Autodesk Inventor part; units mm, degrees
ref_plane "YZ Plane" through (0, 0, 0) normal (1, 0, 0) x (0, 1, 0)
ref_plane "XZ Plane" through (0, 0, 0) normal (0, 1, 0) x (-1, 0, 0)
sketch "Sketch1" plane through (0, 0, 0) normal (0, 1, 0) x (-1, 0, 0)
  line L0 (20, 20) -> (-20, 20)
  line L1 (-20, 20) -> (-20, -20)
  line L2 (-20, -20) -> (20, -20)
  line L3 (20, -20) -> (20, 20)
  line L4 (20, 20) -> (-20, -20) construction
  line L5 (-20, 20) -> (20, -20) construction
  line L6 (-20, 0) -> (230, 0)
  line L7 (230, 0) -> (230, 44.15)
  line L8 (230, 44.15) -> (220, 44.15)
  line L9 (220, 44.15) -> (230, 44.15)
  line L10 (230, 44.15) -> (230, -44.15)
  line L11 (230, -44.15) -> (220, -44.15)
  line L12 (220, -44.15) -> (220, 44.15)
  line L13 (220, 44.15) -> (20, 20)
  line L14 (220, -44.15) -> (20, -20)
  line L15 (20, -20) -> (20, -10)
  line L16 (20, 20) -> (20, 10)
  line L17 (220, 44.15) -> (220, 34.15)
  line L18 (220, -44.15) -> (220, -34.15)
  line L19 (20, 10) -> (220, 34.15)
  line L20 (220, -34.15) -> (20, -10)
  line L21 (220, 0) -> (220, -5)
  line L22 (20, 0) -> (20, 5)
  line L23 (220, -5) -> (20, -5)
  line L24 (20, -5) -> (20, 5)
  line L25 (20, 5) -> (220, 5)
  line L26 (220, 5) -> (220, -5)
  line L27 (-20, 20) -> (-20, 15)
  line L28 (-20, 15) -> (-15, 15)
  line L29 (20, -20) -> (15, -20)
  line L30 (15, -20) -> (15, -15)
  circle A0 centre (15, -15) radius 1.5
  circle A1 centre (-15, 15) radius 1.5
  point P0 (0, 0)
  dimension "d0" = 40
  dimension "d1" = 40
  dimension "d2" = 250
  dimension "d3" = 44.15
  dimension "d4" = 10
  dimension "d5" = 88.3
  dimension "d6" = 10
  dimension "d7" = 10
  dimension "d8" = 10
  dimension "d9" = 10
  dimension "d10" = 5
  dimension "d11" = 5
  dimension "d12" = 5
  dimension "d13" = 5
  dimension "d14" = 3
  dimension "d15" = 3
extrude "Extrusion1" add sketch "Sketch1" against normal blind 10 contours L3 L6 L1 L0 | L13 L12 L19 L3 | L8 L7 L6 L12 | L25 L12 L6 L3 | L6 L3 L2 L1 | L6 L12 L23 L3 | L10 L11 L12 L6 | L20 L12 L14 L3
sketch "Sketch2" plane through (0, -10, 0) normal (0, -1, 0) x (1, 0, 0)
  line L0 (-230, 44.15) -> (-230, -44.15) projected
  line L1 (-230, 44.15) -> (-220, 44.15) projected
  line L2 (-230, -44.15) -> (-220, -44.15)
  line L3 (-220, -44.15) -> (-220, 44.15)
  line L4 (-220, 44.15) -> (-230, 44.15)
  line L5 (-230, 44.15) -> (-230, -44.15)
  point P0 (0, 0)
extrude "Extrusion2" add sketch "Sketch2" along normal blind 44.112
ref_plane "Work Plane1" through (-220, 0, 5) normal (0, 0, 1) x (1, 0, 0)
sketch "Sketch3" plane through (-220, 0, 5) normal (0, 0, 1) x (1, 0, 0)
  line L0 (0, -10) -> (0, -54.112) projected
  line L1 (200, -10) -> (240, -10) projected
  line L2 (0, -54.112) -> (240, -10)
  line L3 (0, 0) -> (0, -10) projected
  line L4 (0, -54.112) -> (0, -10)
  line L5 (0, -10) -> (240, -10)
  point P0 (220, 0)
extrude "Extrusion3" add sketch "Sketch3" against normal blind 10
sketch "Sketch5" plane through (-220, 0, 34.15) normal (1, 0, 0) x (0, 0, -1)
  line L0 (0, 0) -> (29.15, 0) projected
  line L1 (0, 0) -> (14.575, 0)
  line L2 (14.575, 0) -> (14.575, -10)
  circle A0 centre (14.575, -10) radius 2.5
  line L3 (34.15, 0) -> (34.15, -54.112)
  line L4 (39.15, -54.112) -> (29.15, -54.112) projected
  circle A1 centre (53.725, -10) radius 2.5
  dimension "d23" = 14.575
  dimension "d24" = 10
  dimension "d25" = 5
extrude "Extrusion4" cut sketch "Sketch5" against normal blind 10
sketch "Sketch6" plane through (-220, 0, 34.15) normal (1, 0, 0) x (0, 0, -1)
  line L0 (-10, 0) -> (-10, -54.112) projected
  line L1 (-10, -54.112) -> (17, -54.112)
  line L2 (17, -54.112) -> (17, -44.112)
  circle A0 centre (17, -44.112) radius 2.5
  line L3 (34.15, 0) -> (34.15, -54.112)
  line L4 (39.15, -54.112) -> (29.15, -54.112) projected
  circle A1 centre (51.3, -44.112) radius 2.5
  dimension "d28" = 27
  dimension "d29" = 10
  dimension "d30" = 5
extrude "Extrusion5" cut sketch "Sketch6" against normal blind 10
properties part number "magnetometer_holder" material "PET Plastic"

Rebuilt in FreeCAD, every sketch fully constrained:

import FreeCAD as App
import Part
import Sketcher
from FreeCAD import Vector
Q = App.Units.Quantity


def add_polygon(sketch, points):
    """Adds a closed chain of lines whose ends are joined by coincident constraints."""
    first, n = sketch.GeometryCount, len(points)
    for a, b in zip(points, points[1:] + points[:1]):
        sketch.addGeometry(Part.LineSegment(App.Vector(*a, 0), App.Vector(*b, 0)), False)
    for i in range(n):
        sketch.addConstraint(Sketcher.Constraint("Coincident", first + i, 2, first + (i + 1) % n, 1))

doc = App.newDocument("Part")
body = doc.addObject("PartDesign::Body", "Body")

sketch1 = body.newObject("Sketcher::SketchObject", "Sketch")
sketch1.AttachmentSupport = (doc.getObject("XZ_Plane"), [""])
sketch1.MapMode = "FlatFace"
add_polygon(sketch1, [(20, 15), (20, -20), (-15, -20), (-20, -20), (-220, -44.1), (-230, -44.1), (-230, 44.1), (-220, 44.1), (-20, 20), (20, 20)])
add_polygon(sketch1, [(-20, 5), (-20, 10), (-220, 34.1), (-220, 5)])
sketch1.addGeometry(Part.Circle(Vector(15, 15, 0), Vector(0, 0, 1), 1.5), False)
add_polygon(sketch1, [(-20, -10), (-20, -5), (-220, -5), (-220, -34.1)])
sketch1.addGeometry(Part.Circle(Vector(-15, -15, 0), Vector(0, 0, 1), 1.5), False)
sketch1.addConstraint([
    Sketcher.Constraint("Vertical", 0),
    Sketcher.Constraint("Horizontal", 1),
    Sketcher.Constraint("Horizontal", 2),
    Sketcher.Constraint("Horizontal", 4),
    Sketcher.Constraint("Vertical", 5),
    Sketcher.Constraint("Horizontal", 6),
    Sketcher.Constraint("Horizontal", 8),
    Sketcher.Constraint("Vertical", 9),
    Sketcher.Constraint("Vertical", 10),
    Sketcher.Constraint("Vertical", 12),
    Sketcher.Constraint("Horizontal", 13),
    Sketcher.Constraint("Vertical", 15),
    Sketcher.Constraint("Horizontal", 16),
    Sketcher.Constraint("Vertical", 17),
    Sketcher.Constraint("Equal", 14, 19),
    Sketcher.Constraint("Symmetric", 14, 3, 19, 3, -1, 1),
    Sketcher.Constraint("Symmetric", 0, 2, 7, 2, -1, 1),
    Sketcher.Constraint("Symmetric", 3, 2, 6, 2, -1),
    Sketcher.Constraint("Symmetric", 13, 2, 15, 2, -1),
    Sketcher.Constraint("Symmetric", 11, 2, 17, 2, -1),
    Sketcher.Constraint("Parallel", 7, 11),
    Sketcher.Constraint("Parallel", 3, 18),
    Sketcher.Constraint("Horizontal", 14, 3, 9, 2),
    Sketcher.Constraint("Vertical", 19, 3, 1, 2),
    Sketcher.Constraint("Vertical", 2, 2, 7, 2),
    Sketcher.Constraint("Vertical", 7, 2, 10, 2),
    Sketcher.Constraint("Vertical", 6, 2, 11, 2),
    Sketcher.Constraint("Equal", 1, 0),
    Sketcher.Constraint("Equal", 2, 9),
    Sketcher.Constraint("Equal", 9, 10),
    Sketcher.Constraint("Diameter", 14, Q("3 mm")),
    Sketcher.Constraint("DistanceX", 2, 2, 2, 1, Q("5 mm")),
    Sketcher.Constraint("DistanceX", 4, 2, 4, 1, Q("10 mm")),
    Sketcher.Constraint("DistanceX", 8, 1, 8, 2, Q("40 mm")),
    Sketcher.Constraint("DistanceY", 5, 1, 5, 2, Q("88.3 mm")),
    Sketcher.Constraint("DistanceY", -1, 1, 10, 2, Q("10 mm")),
    Sketcher.Constraint("DistanceX", 4, 2, 0, 2, Q("250 mm")),
])
pad1 = body.newObject("PartDesign::Pad", "Pad")
pad1.Profile = sketch1
pad1.Length = 10

sketch2 = body.newObject("Sketcher::SketchObject", "Sketch001")
sketch2.AttachmentSupport = (doc.getObject("XZ_Plane"), [""])
sketch2.MapMode = "FlatFace"
sketch2.AttachmentOffset = App.Placement(Vector(0, 0, 10), App.Rotation())
add_polygon(sketch2, [(-220, 44), (-230, 44), (-230, -44), (-220, -44)])
sketch2.addConstraint([
    Sketcher.Constraint("Horizontal", 0),
    Sketcher.Constraint("Vertical", 1),
    Sketcher.Constraint("Horizontal", 2),
    Sketcher.Constraint("Vertical", 3),
    Sketcher.Constraint("DistanceX", 0, 2, 0, 1, Q("10 mm")),
    Sketcher.Constraint("DistanceY", 1, 2, 1, 1, Q("88.3 mm")),
    Sketcher.Constraint("DistanceX", 0, 2, -1, 1, Q("230 mm")),
    Sketcher.Constraint("DistanceY", -1, 1, 0, 2, Q("44.15 mm")),
])
pad2 = body.newObject("PartDesign::Pad", "Pad001")
pad2.Profile = sketch2
pad2.Length = 44.112

sketch3 = body.newObject("Sketcher::SketchObject", "Sketch002")
sketch3.AttachmentSupport = (doc.getObject("XY_Plane"), [""])
sketch3.MapMode = "FlatFace"
sketch3.AttachmentOffset = App.Placement(Vector(0, 0, 5), App.Rotation())
add_polygon(sketch3, [(20, -10), (-220, -10), (-220, -54)])
sketch3.addConstraint([
    Sketcher.Constraint("Horizontal", 0),
    Sketcher.Constraint("Vertical", 1),
    Sketcher.Constraint("DistanceX", 0, 2, 0, 1, Q("240 mm")),
    Sketcher.Constraint("DistanceX", 0, 2, -1, 1, Q("220 mm")),
    Sketcher.Constraint("DistanceY", 0, 2, -1, 1, Q("10 mm")),
    Sketcher.Constraint("DistanceY", 1, 2, 1, 1, Q("44.112 mm")),
])
pad3 = body.newObject("PartDesign::Pad", "Pad002")
pad3.Profile = sketch3
pad3.Length = 10
pad3.Reversed = True

sketch4 = body.newObject("Sketcher::SketchObject", "Sketch003")
sketch4.AttachmentSupport = (doc.getObject("YZ_Plane"), [""])
sketch4.MapMode = "FlatFace"
sketch4.AttachmentOffset = App.Placement(Vector(0, 0, -220), App.Rotation())
sketch4.addGeometry([
    Part.Circle(Vector(-10, 19.6, 0), Vector(0, 0, 1), 2.5),
    Part.Circle(Vector(-10, -19.6, 0), Vector(0, 0, 1), 2.5),
], False)
sketch4.addConstraint([
    Sketcher.Constraint("Equal", 0, 1),
    Sketcher.Constraint("Symmetric", 0, 3, 1, 3, -1),
    Sketcher.Constraint("Diameter", 0, Q("5 mm")),
    Sketcher.Constraint("DistanceX", 0, 3, -1, 1, Q("10 mm")),
    Sketcher.Constraint("DistanceY", 1, 3, 0, 3, Q("39.15 mm")),
])
pocket1 = body.newObject("PartDesign::Pocket", "Pocket")
pocket1.Profile = sketch4
pocket1.Length = 10

sketch5 = body.newObject("Sketcher::SketchObject", "Sketch004")
sketch5.AttachmentSupport = (doc.getObject("YZ_Plane"), [""])
sketch5.MapMode = "FlatFace"
sketch5.AttachmentOffset = App.Placement(Vector(0, 0, -220), App.Rotation())
sketch5.addGeometry([
    Part.Circle(Vector(-44.1, 17.1, 0), Vector(0, 0, 1), 2.5),
    Part.Circle(Vector(-44.1, -17.1, 0), Vector(0, 0, 1), 2.5),
], False)
sketch5.addConstraint([
    Sketcher.Constraint("Equal", 0, 1),
    Sketcher.Constraint("Symmetric", 0, 3, 1, 3, -1),
    Sketcher.Constraint("Diameter", 0, Q("5 mm")),
    Sketcher.Constraint("DistanceY", 1, 3, 0, 3, Q("34.3 mm")),
    Sketcher.Constraint("DistanceX", 0, 3, -1, 1, Q("44.112 mm")),
])
pocket2 = body.newObject("PartDesign::Pocket", "Pocket001")
pocket2.Profile = sketch5
pocket2.Length = 10

doc.recompute()
